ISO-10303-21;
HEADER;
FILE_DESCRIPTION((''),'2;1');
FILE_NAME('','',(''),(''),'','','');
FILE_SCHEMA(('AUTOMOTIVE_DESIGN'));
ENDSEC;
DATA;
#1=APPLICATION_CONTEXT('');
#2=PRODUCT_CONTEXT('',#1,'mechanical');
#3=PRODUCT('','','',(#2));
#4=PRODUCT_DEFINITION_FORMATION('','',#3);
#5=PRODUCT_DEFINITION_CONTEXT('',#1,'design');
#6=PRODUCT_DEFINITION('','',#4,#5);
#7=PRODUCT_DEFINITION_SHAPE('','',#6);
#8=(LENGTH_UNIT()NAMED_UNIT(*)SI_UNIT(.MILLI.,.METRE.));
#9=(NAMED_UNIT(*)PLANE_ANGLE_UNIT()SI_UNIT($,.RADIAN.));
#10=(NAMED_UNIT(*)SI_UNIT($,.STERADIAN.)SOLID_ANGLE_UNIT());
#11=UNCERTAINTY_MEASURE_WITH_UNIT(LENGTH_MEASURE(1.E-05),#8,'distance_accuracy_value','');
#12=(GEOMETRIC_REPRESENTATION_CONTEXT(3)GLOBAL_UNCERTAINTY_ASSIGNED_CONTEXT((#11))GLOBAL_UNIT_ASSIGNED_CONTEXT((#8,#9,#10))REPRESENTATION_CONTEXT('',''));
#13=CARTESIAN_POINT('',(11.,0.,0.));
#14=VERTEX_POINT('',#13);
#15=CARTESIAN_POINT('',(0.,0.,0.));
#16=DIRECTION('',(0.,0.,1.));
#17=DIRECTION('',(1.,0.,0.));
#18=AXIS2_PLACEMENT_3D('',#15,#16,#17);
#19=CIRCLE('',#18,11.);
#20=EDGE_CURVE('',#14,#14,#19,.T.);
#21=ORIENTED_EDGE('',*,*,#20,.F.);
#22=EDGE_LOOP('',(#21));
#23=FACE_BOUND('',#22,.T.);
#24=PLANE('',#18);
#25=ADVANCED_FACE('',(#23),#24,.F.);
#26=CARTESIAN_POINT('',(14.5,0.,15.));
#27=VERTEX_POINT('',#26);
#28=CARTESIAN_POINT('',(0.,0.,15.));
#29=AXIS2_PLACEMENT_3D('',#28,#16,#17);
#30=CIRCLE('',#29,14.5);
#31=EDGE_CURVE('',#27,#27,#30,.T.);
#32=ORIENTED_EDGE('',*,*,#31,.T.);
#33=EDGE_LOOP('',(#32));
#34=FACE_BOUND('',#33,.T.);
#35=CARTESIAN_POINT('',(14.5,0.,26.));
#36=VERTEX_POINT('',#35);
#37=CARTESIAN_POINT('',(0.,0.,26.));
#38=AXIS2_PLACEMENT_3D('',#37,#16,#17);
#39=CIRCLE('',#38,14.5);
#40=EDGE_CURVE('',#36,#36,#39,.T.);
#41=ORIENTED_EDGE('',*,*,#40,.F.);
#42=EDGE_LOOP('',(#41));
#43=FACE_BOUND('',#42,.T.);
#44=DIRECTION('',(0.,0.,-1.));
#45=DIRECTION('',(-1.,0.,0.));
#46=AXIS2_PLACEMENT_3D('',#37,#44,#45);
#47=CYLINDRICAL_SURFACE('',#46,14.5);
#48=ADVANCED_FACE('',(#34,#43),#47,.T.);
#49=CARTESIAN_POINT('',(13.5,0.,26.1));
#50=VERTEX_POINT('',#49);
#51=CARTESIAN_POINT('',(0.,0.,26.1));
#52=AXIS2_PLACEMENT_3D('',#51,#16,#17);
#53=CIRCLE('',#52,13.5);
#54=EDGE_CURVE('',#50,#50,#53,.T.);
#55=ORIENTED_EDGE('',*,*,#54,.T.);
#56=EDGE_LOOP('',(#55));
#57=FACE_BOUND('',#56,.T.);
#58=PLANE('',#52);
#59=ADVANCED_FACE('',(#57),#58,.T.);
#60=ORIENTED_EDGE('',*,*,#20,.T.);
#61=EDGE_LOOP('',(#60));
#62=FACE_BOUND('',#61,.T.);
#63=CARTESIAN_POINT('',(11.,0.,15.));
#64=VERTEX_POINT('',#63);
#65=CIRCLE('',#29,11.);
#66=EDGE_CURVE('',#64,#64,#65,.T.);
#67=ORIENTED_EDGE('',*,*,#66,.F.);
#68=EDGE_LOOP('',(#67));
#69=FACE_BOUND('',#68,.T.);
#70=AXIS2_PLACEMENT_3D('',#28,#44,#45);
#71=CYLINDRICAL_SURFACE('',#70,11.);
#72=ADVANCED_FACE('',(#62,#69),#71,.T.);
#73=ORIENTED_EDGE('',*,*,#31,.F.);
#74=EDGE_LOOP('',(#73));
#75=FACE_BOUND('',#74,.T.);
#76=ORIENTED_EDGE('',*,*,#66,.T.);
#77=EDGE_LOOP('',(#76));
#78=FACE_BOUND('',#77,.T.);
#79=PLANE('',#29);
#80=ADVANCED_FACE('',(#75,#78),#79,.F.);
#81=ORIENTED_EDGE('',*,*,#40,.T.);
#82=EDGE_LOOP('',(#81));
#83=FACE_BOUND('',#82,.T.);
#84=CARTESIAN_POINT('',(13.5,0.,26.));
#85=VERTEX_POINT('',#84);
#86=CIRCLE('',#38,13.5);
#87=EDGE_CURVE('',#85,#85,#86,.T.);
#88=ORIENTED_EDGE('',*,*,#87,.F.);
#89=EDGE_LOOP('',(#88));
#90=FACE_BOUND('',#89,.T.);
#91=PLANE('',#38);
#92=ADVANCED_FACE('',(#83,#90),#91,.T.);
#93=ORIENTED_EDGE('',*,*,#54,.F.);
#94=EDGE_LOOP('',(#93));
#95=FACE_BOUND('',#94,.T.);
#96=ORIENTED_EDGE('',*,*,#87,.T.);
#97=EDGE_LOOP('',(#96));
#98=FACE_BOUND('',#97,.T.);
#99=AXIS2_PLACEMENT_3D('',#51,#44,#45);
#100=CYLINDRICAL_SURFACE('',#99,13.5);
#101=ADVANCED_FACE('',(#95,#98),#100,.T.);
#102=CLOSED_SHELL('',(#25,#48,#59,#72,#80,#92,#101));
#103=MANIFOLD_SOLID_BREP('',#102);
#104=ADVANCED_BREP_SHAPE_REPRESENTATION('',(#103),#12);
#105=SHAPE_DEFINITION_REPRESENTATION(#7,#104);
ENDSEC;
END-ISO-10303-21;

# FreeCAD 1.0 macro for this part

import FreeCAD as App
import Part
import Sketcher
from FreeCAD import Vector

doc = App.newDocument("Part")
body = doc.addObject("PartDesign::Body", "Body")

# Sketch on XY plane
sketch1 = doc.addObject("Sketcher::SketchObject", "Sketch")
body.addObject(sketch1)
sketch1.AttachmentSupport = (doc.XY_Plane, [""])
sketch1.MapMode = "FlatFace"
sketch1.addGeometry(Part.Circle(Vector(0, 0, 0), Vector(0, 0, 1), 11), False)
sketch1.addConstraint(Sketcher.Constraint("Coincident", 0, 3, -1, 1))
sketch1.addConstraint(Sketcher.Constraint("Diameter", 0, 22.0))
pad1 = doc.addObject("PartDesign::Pad", "Pad")
body.addObject(pad1)
pad1.Profile = sketch1
pad1.Length = 15

# Sketch on XY plane
sketch2 = doc.addObject("Sketcher::SketchObject", "Sketch001")
body.addObject(sketch2)
sketch2.AttachmentSupport = (doc.XY_Plane, [""])
sketch2.MapMode = "FlatFace"
sketch2.AttachmentOffset = App.Placement(Vector(0, 0, 15), App.Rotation())
sketch2.addGeometry(Part.Circle(Vector(0, 0, 0), Vector(0, 0, 1), 14), False)
sketch2.addConstraint(Sketcher.Constraint("Coincident", 0, 3, -1, 1))
sketch2.addConstraint(Sketcher.Constraint("Diameter", 0, 29.0))
pad2 = doc.addObject("PartDesign::Pad", "Pad001")
body.addObject(pad2)
pad2.Profile = sketch2
pad2.Length = 11

# Sketch on XY plane
sketch3 = doc.addObject("Sketcher::SketchObject", "Sketch002")
body.addObject(sketch3)
sketch3.AttachmentSupport = (doc.XY_Plane, [""])
sketch3.MapMode = "FlatFace"
sketch3.AttachmentOffset = App.Placement(Vector(0, 0, 26), App.Rotation())
sketch3.addGeometry(Part.Circle(Vector(0, 0, 0), Vector(0, 0, 1), 14), False)
sketch3.addConstraint(Sketcher.Constraint("Coincident", 0, 3, -1, 1))
sketch3.addConstraint(Sketcher.Constraint("Diameter", 0, 27.0))
pad3 = doc.addObject("PartDesign::Pad", "Pad002")
body.addObject(pad3)
pad3.Profile = sketch3
pad3.Length = 0.1

doc.recompute()
